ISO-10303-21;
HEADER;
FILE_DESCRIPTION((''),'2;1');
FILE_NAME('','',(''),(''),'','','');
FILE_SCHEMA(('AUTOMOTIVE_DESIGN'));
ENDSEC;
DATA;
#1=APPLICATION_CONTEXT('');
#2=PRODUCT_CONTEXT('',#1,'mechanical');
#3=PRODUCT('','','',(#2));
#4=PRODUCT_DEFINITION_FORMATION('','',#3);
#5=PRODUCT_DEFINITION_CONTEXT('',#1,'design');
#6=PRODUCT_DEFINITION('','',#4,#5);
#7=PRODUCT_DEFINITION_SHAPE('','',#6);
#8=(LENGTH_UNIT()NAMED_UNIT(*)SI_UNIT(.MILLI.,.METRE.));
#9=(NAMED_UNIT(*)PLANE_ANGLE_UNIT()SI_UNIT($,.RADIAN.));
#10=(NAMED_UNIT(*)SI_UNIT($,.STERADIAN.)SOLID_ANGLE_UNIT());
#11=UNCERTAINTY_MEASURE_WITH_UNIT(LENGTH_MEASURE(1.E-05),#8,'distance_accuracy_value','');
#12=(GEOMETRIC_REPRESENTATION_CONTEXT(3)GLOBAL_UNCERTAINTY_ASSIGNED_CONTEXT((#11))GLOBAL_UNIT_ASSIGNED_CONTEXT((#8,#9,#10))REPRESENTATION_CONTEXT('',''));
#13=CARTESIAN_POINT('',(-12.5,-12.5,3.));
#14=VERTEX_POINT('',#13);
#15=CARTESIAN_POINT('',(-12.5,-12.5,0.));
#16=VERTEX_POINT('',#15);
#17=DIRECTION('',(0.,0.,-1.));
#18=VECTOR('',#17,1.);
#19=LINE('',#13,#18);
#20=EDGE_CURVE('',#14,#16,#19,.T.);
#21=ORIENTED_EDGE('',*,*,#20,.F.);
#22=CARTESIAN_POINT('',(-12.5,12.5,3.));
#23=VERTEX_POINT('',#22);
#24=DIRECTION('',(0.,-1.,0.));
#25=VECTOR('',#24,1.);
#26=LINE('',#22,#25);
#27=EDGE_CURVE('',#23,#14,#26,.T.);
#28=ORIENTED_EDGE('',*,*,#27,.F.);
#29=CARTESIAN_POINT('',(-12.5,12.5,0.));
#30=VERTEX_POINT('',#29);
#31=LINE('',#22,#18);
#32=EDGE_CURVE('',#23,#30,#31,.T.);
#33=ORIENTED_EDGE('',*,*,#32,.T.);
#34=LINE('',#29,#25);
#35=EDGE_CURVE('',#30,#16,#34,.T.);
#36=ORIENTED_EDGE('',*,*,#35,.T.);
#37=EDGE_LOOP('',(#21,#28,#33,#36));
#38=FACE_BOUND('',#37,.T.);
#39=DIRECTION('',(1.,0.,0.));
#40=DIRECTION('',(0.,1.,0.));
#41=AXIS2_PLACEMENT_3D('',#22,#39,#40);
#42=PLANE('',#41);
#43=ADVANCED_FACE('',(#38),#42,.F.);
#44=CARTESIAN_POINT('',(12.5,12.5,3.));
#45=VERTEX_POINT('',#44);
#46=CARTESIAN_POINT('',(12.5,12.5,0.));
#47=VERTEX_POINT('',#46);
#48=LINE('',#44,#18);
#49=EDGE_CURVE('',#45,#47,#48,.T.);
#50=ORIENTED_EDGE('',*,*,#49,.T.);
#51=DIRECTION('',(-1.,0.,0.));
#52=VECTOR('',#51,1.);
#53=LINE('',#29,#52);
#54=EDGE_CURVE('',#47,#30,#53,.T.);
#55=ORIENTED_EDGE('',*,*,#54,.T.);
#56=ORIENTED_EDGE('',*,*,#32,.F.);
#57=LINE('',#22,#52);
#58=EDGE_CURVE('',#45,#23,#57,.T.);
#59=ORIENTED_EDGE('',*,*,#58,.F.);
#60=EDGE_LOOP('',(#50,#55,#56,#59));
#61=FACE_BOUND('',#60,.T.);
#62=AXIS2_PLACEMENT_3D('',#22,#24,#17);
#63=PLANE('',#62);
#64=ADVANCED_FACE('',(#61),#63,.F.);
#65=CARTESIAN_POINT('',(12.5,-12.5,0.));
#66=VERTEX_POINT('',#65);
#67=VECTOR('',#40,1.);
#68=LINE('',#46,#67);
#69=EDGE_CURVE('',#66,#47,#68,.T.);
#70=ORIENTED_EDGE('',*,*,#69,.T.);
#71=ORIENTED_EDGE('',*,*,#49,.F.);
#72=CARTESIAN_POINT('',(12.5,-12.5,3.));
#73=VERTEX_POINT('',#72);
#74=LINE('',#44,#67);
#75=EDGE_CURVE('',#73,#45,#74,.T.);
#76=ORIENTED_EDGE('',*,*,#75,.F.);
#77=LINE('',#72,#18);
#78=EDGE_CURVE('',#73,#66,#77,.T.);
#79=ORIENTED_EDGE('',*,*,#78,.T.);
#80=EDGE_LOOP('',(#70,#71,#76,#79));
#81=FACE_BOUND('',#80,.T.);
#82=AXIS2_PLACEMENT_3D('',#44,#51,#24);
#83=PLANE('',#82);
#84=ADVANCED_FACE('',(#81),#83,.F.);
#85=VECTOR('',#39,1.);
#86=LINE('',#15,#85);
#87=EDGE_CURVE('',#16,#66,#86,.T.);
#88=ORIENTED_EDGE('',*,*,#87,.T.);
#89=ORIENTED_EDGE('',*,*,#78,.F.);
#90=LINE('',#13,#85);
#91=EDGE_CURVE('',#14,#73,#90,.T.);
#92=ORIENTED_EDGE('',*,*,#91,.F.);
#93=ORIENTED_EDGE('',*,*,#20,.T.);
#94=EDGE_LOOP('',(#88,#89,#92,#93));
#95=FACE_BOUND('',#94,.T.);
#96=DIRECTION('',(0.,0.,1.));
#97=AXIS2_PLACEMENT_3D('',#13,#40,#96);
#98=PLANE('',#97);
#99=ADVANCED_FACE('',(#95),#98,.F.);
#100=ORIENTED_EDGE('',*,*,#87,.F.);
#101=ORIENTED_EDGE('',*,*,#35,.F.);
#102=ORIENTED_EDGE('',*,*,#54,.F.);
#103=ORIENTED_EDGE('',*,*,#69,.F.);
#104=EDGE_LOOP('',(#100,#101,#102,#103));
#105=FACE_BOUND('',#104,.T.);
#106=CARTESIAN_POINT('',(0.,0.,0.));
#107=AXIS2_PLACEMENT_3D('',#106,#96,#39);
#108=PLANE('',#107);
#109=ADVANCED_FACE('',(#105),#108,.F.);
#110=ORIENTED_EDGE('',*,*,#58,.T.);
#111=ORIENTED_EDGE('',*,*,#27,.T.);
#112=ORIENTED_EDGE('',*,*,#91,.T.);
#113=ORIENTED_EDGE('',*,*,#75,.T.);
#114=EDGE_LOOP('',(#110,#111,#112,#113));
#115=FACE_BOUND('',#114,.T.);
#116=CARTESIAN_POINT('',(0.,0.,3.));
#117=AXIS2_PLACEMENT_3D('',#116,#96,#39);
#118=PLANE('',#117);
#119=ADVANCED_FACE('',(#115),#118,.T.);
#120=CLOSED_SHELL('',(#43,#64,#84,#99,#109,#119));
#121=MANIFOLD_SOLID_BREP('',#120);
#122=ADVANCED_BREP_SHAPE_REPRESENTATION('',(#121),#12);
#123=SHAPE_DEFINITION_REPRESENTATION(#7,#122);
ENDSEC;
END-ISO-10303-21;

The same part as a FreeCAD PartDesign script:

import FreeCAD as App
import Part
import Sketcher
from FreeCAD import Vector
Q = App.Units.Quantity


def add_polygon(sketch, points):
    """Adds a closed chain of lines whose ends are joined by coincident constraints."""
    first, n = sketch.GeometryCount, len(points)
    for a, b in zip(points, points[1:] + points[:1]):
        sketch.addGeometry(Part.LineSegment(App.Vector(*a, 0), App.Vector(*b, 0)), False)
    for i in range(n):
        sketch.addConstraint(Sketcher.Constraint("Coincident", first + i, 2, first + (i + 1) % n, 1))

doc = App.newDocument("Part")
params = doc.addObject("Spreadsheet::Sheet", "Params")
for row, (alias, value) in enumerate([
    ("sketch1_width", "25 mm"),
    ("pad1_length", "3 mm"),
], start=1):
    params.set(f"A{row}", alias)
    params.set(f"B{row}", "=" + value)
    params.setAlias(f"B{row}", alias)

body = doc.addObject("PartDesign::Body", "Body")

# Sketch on XY plane
sketch1 = body.newObject("Sketcher::SketchObject", "Sketch")
sketch1.AttachmentSupport = (doc.getObject("XY_Plane"), [""])
sketch1.MapMode = "FlatFace"
add_polygon(sketch1, [(-12, 12), (-12, -12), (12, -12), (12, 12)])  # lines 0-3
sketch1.addConstraint(Sketcher.Constraint("Vertical", 0))
sketch1.addConstraint(Sketcher.Constraint("Horizontal", 1))
sketch1.addConstraint(Sketcher.Constraint("Vertical", 2))
sketch1.addConstraint(Sketcher.Constraint("Horizontal", 3))
sketch1.addConstraint(Sketcher.Constraint("Symmetric", 0, 2, 2, 2, -1, 1))
sketch1.addConstraint(Sketcher.Constraint("Equal", 3, 0))
sketch1.addConstraint(Sketcher.Constraint("DistanceX", 1, 1, 1, 2, Q("25 mm")))
sketch1.setExpression("Constraints[10]", "Params.sketch1_width")
pad1 = body.newObject("PartDesign::Pad", "Pad")
pad1.Profile = sketch1
pad1.setExpression("Length", "Params.pad1_length")

doc.recompute()
